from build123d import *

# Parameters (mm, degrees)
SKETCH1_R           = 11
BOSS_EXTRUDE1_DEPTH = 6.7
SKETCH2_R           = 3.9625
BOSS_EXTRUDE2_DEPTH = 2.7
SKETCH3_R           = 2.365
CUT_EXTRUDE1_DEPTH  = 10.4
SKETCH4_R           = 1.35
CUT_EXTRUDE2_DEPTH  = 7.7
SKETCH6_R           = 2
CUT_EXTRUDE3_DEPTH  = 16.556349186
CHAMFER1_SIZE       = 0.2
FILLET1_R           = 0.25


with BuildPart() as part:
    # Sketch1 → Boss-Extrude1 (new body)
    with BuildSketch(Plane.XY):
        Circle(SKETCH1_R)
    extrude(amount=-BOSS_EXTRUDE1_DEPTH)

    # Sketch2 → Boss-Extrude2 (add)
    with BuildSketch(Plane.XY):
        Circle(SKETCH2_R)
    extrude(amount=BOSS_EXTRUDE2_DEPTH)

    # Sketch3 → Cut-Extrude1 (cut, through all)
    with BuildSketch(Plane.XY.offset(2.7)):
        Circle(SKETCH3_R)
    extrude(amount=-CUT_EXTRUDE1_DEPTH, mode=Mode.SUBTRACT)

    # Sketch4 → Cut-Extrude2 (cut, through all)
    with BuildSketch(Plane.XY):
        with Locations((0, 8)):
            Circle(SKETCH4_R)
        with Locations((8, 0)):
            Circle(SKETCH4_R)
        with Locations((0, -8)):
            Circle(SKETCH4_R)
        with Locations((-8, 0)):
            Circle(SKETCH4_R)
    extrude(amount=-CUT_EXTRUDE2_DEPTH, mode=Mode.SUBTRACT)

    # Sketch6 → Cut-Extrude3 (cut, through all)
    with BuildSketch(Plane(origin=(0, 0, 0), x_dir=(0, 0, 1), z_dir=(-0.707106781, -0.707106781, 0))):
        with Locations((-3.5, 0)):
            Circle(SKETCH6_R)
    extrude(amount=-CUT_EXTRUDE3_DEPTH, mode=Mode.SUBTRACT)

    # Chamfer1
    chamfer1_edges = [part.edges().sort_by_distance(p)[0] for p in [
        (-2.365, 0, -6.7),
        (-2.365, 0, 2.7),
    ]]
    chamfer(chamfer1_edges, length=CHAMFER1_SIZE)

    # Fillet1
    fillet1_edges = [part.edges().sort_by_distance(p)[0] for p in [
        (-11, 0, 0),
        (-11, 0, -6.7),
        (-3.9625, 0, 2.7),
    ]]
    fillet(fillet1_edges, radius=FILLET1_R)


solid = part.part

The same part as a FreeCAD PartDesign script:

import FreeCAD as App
import Part
import Sketcher
Q = App.Units.Quantity


def edges_at(feature, points):
    """Names of the edges that pass closest to the given points."""
    edges = feature.Shape.Edges
    near = lambda p: min(range(len(edges)), key=lambda i: edges[i].distToShape(Part.Vertex(*p))[0])
    return sorted({f"Edge{near(p) + 1}" for p in points})

doc = App.newDocument("Part")
body = doc.addObject("PartDesign::Body", "Body")

# Sketch on XY plane
sketch1 = doc.addObject("Sketcher::SketchObject", "Sketch")
body.addObject(sketch1)
sketch1.AttachmentSupport = (doc.XY_Plane, [""])
sketch1.MapMode = "FlatFace"
sketch1.addGeometry(Part.Circle(App.Vector(0, 0, 0), App.Vector(0, 0, 1), 11), False)
sketch1.addConstraint([
    Sketcher.Constraint("Coincident", 0, 3, -1, 1),
    Sketcher.Constraint("Diameter", 0, Q("22 mm")),
])
pad1 = doc.addObject("PartDesign::Pad", "Pad")
body.addObject(pad1)
pad1.Profile = sketch1
pad1.Length = 6.7
pad1.Reversed = True

# Sketch on XY plane
sketch2 = doc.addObject("Sketcher::SketchObject", "Sketch001")
body.addObject(sketch2)
sketch2.AttachmentSupport = (doc.XY_Plane, [""])
sketch2.MapMode = "FlatFace"
sketch2.addGeometry(Part.Circle(App.Vector(0, 0, 0), App.Vector(0, 0, 1), 4), False)
sketch2.addConstraint([
    Sketcher.Constraint("Coincident", 0, 3, -1, 1),
    Sketcher.Constraint("Diameter", 0, Q("7.925 mm")),
])
pad2 = doc.addObject("PartDesign::Pad", "Pad001")
body.addObject(pad2)
pad2.Profile = sketch2
pad2.Length = 2.7

# Sketch on XY plane
sketch3 = doc.addObject("Sketcher::SketchObject", "Sketch002")
body.addObject(sketch3)
sketch3.AttachmentSupport = (doc.XY_Plane, [""])
sketch3.MapMode = "FlatFace"
sketch3.AttachmentOffset = App.Placement(App.Vector(0, 0, 2.7), App.Rotation())
sketch3.addGeometry(Part.Circle(App.Vector(0, 0, 0), App.Vector(0, 0, 1), 2.4), False)
sketch3.addConstraint([
    Sketcher.Constraint("Coincident", 0, 3, -1, 1),
    Sketcher.Constraint("Diameter", 0, Q("4.73 mm")),
])
pocket1 = doc.addObject("PartDesign::Pocket", "Pocket")
body.addObject(pocket1)
pocket1.Profile = sketch3
pocket1.Type = "ThroughAll"

# Sketch on XY plane
sketch4 = doc.addObject("Sketcher::SketchObject", "Sketch003")
body.addObject(sketch4)
sketch4.AttachmentSupport = (doc.XY_Plane, [""])
sketch4.MapMode = "FlatFace"
sketch4.addGeometry([
    Part.Circle(App.Vector(0, 8, 0), App.Vector(0, 0, 1), 1.4),
    Part.Circle(App.Vector(8, 0, 0), App.Vector(0, 0, 1), 1.4),
    Part.Circle(App.Vector(0, -8, 0), App.Vector(0, 0, 1), 1.4),
    Part.Circle(App.Vector(-8, 0, 0), App.Vector(0, 0, 1), 1.4),
], False)
sketch4.addConstraint([
    Sketcher.Constraint("Equal", 0, 1),
    Sketcher.Constraint("Equal", 1, 2),
    Sketcher.Constraint("Equal", 2, 3),
    Sketcher.Constraint("Symmetric", 0, 3, 2, 3, -1, 1),
    Sketcher.Constraint("Symmetric", 1, 3, 3, 3, -1, 1),
    Sketcher.Constraint("PointOnObject", 0, 3, -2),
    Sketcher.Constraint("PointOnObject", 1, 3, -1),
    Sketcher.Constraint("Diameter", 0, Q("2.7 mm")),
    Sketcher.Constraint("DistanceY", -1, 1, 0, 3, Q("8 mm")),
    Sketcher.Constraint("DistanceX", -1, 1, 1, 3, Q("8 mm")),
])
pocket2 = doc.addObject("PartDesign::Pocket", "Pocket001")
body.addObject(pocket2)
pocket2.Profile = sketch4
pocket2.Type = "ThroughAll"

# Sketch on an angled plane
sketch5 = doc.addObject("Sketcher::SketchObject", "Sketch004")
body.addObject(sketch5)
sketch5.Placement = App.Placement(App.Vector(0, 0, 0), App.Rotation(App.Vector(0, 0, 1), App.Vector(-0.707106781, 0.707106781, 0), App.Vector(-0.707106781, -0.707106781, 0), "ZXY"))
sketch5.addGeometry(Part.Circle(App.Vector(-3.5, 0, 0), App.Vector(0, 0, 1), 2), False)
sketch5.addConstraint([
    Sketcher.Constraint("PointOnObject", 0, 3, -1),
    Sketcher.Constraint("Diameter", 0, Q("4 mm")),
    Sketcher.Constraint("DistanceX", 0, 3, -1, 1, Q("3.5 mm")),
])
pocket3 = doc.addObject("PartDesign::Pocket", "Pocket002")
body.addObject(pocket3)
pocket3.Profile = sketch5
pocket3.Type = "ThroughAll"
doc.recompute()

chamfer = doc.addObject("PartDesign::Chamfer", "Chamfer")
body.addObject(chamfer)
chamfer.Base = (pocket3, edges_at(pocket3, [(-2.365, 0, -6.7), (-2.365, 0, 2.7)]))
chamfer.Size = 0.2
doc.recompute()

fillet = doc.addObject("PartDesign::Fillet", "Fillet")
body.addObject(fillet)
fillet.Base = (chamfer, edges_at(chamfer, [(-11, 0, 0), (-11, 0, -6.7), (-3.962, 0, 2.7)]))
fillet.Radius = 0.25

doc.recompute()
